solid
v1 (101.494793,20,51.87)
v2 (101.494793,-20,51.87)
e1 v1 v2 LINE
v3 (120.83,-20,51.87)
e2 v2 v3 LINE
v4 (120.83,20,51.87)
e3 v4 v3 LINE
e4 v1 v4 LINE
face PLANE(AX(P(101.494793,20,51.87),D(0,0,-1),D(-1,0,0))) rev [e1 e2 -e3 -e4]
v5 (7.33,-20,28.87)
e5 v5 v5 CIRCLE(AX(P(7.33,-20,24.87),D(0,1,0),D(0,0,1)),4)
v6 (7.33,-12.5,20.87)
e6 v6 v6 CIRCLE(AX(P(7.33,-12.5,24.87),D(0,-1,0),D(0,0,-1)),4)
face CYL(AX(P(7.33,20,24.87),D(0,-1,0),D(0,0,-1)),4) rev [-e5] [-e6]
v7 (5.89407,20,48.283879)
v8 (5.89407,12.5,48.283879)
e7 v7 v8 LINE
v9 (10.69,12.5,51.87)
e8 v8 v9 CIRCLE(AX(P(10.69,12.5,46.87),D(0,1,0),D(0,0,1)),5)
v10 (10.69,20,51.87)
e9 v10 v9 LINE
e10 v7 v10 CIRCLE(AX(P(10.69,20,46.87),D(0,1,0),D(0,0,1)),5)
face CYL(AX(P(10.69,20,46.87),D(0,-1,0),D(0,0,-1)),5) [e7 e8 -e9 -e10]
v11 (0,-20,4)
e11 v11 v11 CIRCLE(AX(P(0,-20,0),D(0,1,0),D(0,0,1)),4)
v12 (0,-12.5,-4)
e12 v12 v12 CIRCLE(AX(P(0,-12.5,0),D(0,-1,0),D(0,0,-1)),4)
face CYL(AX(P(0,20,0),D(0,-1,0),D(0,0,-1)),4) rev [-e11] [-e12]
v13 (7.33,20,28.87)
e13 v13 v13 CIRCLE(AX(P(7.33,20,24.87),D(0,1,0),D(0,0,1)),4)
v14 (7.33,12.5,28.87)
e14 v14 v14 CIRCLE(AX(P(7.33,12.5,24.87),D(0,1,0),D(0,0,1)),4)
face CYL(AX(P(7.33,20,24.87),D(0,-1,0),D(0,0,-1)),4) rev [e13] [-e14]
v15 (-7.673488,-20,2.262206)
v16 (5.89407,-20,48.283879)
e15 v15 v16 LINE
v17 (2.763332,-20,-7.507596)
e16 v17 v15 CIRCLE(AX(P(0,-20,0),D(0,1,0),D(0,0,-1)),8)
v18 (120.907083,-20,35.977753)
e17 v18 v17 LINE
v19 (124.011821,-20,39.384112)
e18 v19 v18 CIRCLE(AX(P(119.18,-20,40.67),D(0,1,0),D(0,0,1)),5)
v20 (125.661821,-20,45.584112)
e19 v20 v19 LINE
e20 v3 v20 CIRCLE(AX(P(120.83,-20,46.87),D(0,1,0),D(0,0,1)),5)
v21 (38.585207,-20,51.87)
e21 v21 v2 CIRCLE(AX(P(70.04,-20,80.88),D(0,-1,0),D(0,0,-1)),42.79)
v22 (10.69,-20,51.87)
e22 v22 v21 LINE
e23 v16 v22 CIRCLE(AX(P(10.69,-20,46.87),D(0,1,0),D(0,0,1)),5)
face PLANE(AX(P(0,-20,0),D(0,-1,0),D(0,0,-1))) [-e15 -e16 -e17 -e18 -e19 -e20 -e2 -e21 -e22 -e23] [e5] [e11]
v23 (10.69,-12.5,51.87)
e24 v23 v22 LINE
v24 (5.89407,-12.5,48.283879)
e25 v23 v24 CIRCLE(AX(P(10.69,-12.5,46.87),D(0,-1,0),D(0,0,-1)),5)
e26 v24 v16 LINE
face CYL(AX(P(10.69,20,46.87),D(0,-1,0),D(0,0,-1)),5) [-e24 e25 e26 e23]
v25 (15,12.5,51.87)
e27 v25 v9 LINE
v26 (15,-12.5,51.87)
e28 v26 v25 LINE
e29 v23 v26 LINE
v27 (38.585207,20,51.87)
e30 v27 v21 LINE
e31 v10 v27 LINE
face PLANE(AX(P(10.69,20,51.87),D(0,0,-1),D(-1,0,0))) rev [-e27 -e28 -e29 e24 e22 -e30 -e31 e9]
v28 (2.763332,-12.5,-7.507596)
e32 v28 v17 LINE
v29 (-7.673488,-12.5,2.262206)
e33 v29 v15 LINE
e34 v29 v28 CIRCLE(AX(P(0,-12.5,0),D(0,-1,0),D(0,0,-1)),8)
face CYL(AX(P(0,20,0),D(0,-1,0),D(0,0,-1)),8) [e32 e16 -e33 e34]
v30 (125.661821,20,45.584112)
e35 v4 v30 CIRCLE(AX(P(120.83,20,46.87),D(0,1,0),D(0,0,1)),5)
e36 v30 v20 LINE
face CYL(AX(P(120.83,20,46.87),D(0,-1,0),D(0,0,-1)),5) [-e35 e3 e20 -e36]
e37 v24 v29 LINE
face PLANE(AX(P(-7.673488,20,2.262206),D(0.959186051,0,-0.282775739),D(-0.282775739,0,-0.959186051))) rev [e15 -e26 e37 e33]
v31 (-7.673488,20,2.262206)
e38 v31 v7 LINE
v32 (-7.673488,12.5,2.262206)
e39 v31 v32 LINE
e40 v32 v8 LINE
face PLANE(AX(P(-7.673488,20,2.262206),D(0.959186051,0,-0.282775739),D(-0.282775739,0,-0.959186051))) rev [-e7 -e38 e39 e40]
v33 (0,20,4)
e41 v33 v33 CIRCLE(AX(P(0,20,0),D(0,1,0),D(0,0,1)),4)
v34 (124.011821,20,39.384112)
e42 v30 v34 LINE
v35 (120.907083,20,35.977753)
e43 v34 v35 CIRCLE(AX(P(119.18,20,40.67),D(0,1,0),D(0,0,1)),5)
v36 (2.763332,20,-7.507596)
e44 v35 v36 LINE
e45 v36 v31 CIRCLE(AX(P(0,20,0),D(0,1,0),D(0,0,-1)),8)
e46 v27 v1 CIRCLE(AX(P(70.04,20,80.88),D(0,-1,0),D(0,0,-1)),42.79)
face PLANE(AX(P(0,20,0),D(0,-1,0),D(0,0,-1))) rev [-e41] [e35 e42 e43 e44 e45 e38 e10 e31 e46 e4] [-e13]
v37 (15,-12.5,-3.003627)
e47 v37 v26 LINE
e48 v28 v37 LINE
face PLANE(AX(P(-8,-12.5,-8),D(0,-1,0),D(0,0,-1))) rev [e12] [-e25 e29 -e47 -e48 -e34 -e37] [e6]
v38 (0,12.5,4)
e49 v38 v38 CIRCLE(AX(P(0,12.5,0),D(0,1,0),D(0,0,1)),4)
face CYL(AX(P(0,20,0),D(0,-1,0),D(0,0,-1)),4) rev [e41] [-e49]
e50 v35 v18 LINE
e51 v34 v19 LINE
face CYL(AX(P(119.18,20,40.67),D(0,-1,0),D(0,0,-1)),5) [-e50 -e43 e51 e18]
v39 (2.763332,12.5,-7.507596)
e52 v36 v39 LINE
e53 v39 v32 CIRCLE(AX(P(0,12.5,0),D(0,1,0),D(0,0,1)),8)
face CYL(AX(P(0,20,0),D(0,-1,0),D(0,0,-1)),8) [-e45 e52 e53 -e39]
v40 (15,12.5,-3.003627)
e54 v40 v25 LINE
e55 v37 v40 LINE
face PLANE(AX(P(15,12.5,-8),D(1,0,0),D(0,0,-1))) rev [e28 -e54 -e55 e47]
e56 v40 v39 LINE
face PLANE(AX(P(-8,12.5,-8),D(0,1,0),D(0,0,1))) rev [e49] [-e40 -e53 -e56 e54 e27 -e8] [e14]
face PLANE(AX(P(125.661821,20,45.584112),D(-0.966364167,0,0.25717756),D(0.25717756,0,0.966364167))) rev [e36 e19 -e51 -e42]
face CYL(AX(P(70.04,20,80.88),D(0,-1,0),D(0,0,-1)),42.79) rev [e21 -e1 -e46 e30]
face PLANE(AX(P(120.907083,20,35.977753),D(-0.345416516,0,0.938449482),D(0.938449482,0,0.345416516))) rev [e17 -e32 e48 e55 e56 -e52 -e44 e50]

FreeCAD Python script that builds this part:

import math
import FreeCAD as App
import Part
import Sketcher
Q = App.Units.Quantity

doc = App.newDocument("Part")
body = doc.addObject("PartDesign::Body", "Body")

# Sketch on XZ plane
sketch1 = body.newObject("Sketcher::SketchObject", "Sketch")
sketch1.AttachmentSupport = (doc.getObject("XZ_Plane"), [""])
sketch1.MapMode = "FlatFace"
sketch1.addGeometry([
    Part.LineSegment(App.Vector(-7.7, 2.3, 0), App.Vector(5.9, 48.3, 0)),  # 0
    Part.ArcOfCircle(Part.Circle(App.Vector(10.7, 46.9, 0), App.Vector(0, 0, 1), 5), math.radians(90), math.radians(164)),  # 1
    Part.LineSegment(App.Vector(10.7, 51.9, 0), App.Vector(38.6, 51.9, 0)),  # 2
    Part.ArcOfCircle(Part.Circle(App.Vector(70, 80.9, 0), App.Vector(0, 0, 1), 42.8), math.radians(-137), math.radians(-43)),  # 3
    Part.LineSegment(App.Vector(101.5, 51.9, 0), App.Vector(120.8, 51.9, 0)),  # 4
    Part.ArcOfCircle(Part.Circle(App.Vector(120.8, 46.9, 0), App.Vector(0, 0, 1), 5), math.radians(-15), math.radians(90)),  # 5
    Part.LineSegment(App.Vector(125.7, 45.6, 0), App.Vector(124, 39.4, 0)),  # 6
    Part.ArcOfCircle(Part.Circle(App.Vector(119.2, 40.7, 0), App.Vector(0, 0, 1), 5), math.radians(-70), math.radians(-15)),  # 7
    Part.LineSegment(App.Vector(120.9, 36, 0), App.Vector(2.8, -7.5, 0)),  # 8
    Part.ArcOfCircle(Part.Circle(App.Vector(0, 0, 0), App.Vector(0, 0, 1), 8), math.radians(164), math.radians(290)),  # 9
    Part.Circle(App.Vector(7.3, 24.9, 0), App.Vector(0, 0, 1), 4),  # 10
    Part.Circle(App.Vector(0, 0, 0), App.Vector(0, 0, 1), 4),  # 11
], False)
sketch1.addConstraint([
    Sketcher.Constraint("Tangent", 0, 2, 1, 2),
    Sketcher.Constraint("Tangent", 1, 1, 2, 1),
    Sketcher.Constraint("Coincident", 2, 2, 3, 1),
    Sketcher.Constraint("Coincident", 3, 2, 4, 1),
    Sketcher.Constraint("Tangent", 4, 2, 5, 2),
    Sketcher.Constraint("Tangent", 5, 1, 6, 1),
    Sketcher.Constraint("Tangent", 6, 2, 7, 2),
    Sketcher.Constraint("Tangent", 7, 1, 8, 1),
    Sketcher.Constraint("Tangent", 8, 2, 9, 2),
    Sketcher.Constraint("Tangent", 9, 1, 0, 1),
    Sketcher.Constraint("Horizontal", 2),
    Sketcher.Constraint("Horizontal", 4),
    Sketcher.Constraint("Coincident", 9, 3, -1, 1),
    Sketcher.Constraint("Coincident", 11, 3, -1, 1),
    Sketcher.Constraint("Equal", 1, 5),
    Sketcher.Constraint("Equal", 5, 7),
    Sketcher.Constraint("Equal", 10, 11),
    Sketcher.Constraint("Horizontal", 1, 3, 5, 3),
    Sketcher.Constraint("Diameter", 10, Q("8 mm")),
    Sketcher.Constraint("Radius", 1, Q("5 mm")),
    Sketcher.Constraint("Radius", 9, Q("8 mm")),
    Sketcher.Constraint("Radius", 3, Q("42.79 mm")),
    Sketcher.Constraint("DistanceY", 10, 3, 1, 3, Q("22 mm")),
    Sketcher.Constraint("DistanceY", 7, 3, 5, 3, Q("6.2 mm")),
    Sketcher.Constraint("DistanceX", 10, 3, 5, 3, Q("113.5 mm")),
    Sketcher.Constraint("DistanceX", -1, 1, 1, 3, Q("10.69 mm")),
    Sketcher.Constraint("DistanceY", -1, 1, 1, 3, Q("46.87 mm")),
    Sketcher.Constraint("DistanceX", -1, 1, 3, 3, Q("70.04 mm")),
    Sketcher.Constraint("DistanceY", -1, 1, 3, 3, Q("80.88 mm")),
    Sketcher.Constraint("DistanceX", -1, 1, 5, 3, Q("120.83 mm")),
    Sketcher.Constraint("DistanceX", -1, 1, 7, 3, Q("119.18 mm")),
])
pad1 = body.newObject("PartDesign::Pad", "Pad")
pad1.Profile = sketch1
pad1.Length = 40
pad1.Midplane = True

# Sketch on XY plane
sketch2 = body.newObject("Sketcher::SketchObject", "Sketch001")
sketch2.AttachmentSupport = (doc.getObject("XY_Plane"), [""])
sketch2.MapMode = "FlatFace"
sketch2.addGeometry([
    Part.LineSegment(App.Vector(-8, 12, 0), App.Vector(-8, -12, 0)),
    Part.LineSegment(App.Vector(-8, -12, 0), App.Vector(15, -12, 0)),
    Part.LineSegment(App.Vector(15, -12, 0), App.Vector(15, 12, 0)),
    Part.LineSegment(App.Vector(15, 12, 0), App.Vector(-8, 12, 0)),
], False)
sketch2.addConstraint([
    Sketcher.Constraint("Coincident", 0, 2, 1, 1),
    Sketcher.Constraint("Coincident", 1, 2, 2, 1),
    Sketcher.Constraint("Coincident", 2, 2, 3, 1),
    Sketcher.Constraint("Coincident", 3, 2, 0, 1),
    Sketcher.Constraint("Vertical", 0),
    Sketcher.Constraint("Horizontal", 1),
    Sketcher.Constraint("Vertical", 2),
    Sketcher.Constraint("Horizontal", 3),
    Sketcher.Constraint("DistanceX", 1, 1, 1, 2, Q("23 mm")),
    Sketcher.Constraint("DistanceY", 0, 2, 0, 1, Q("25 mm")),
    Sketcher.Constraint("DistanceX", 0, 2, -1, 1, Q("8 mm")),
    Sketcher.Constraint("DistanceY", 0, 2, -1, 1, Q("12.5 mm")),
])
pocket1 = body.newObject("PartDesign::Pocket", "Pocket")
pocket1.Profile = sketch2
pocket1.Type = "ThroughAll"
pocket1.Midplane = True

doc.recompute()
